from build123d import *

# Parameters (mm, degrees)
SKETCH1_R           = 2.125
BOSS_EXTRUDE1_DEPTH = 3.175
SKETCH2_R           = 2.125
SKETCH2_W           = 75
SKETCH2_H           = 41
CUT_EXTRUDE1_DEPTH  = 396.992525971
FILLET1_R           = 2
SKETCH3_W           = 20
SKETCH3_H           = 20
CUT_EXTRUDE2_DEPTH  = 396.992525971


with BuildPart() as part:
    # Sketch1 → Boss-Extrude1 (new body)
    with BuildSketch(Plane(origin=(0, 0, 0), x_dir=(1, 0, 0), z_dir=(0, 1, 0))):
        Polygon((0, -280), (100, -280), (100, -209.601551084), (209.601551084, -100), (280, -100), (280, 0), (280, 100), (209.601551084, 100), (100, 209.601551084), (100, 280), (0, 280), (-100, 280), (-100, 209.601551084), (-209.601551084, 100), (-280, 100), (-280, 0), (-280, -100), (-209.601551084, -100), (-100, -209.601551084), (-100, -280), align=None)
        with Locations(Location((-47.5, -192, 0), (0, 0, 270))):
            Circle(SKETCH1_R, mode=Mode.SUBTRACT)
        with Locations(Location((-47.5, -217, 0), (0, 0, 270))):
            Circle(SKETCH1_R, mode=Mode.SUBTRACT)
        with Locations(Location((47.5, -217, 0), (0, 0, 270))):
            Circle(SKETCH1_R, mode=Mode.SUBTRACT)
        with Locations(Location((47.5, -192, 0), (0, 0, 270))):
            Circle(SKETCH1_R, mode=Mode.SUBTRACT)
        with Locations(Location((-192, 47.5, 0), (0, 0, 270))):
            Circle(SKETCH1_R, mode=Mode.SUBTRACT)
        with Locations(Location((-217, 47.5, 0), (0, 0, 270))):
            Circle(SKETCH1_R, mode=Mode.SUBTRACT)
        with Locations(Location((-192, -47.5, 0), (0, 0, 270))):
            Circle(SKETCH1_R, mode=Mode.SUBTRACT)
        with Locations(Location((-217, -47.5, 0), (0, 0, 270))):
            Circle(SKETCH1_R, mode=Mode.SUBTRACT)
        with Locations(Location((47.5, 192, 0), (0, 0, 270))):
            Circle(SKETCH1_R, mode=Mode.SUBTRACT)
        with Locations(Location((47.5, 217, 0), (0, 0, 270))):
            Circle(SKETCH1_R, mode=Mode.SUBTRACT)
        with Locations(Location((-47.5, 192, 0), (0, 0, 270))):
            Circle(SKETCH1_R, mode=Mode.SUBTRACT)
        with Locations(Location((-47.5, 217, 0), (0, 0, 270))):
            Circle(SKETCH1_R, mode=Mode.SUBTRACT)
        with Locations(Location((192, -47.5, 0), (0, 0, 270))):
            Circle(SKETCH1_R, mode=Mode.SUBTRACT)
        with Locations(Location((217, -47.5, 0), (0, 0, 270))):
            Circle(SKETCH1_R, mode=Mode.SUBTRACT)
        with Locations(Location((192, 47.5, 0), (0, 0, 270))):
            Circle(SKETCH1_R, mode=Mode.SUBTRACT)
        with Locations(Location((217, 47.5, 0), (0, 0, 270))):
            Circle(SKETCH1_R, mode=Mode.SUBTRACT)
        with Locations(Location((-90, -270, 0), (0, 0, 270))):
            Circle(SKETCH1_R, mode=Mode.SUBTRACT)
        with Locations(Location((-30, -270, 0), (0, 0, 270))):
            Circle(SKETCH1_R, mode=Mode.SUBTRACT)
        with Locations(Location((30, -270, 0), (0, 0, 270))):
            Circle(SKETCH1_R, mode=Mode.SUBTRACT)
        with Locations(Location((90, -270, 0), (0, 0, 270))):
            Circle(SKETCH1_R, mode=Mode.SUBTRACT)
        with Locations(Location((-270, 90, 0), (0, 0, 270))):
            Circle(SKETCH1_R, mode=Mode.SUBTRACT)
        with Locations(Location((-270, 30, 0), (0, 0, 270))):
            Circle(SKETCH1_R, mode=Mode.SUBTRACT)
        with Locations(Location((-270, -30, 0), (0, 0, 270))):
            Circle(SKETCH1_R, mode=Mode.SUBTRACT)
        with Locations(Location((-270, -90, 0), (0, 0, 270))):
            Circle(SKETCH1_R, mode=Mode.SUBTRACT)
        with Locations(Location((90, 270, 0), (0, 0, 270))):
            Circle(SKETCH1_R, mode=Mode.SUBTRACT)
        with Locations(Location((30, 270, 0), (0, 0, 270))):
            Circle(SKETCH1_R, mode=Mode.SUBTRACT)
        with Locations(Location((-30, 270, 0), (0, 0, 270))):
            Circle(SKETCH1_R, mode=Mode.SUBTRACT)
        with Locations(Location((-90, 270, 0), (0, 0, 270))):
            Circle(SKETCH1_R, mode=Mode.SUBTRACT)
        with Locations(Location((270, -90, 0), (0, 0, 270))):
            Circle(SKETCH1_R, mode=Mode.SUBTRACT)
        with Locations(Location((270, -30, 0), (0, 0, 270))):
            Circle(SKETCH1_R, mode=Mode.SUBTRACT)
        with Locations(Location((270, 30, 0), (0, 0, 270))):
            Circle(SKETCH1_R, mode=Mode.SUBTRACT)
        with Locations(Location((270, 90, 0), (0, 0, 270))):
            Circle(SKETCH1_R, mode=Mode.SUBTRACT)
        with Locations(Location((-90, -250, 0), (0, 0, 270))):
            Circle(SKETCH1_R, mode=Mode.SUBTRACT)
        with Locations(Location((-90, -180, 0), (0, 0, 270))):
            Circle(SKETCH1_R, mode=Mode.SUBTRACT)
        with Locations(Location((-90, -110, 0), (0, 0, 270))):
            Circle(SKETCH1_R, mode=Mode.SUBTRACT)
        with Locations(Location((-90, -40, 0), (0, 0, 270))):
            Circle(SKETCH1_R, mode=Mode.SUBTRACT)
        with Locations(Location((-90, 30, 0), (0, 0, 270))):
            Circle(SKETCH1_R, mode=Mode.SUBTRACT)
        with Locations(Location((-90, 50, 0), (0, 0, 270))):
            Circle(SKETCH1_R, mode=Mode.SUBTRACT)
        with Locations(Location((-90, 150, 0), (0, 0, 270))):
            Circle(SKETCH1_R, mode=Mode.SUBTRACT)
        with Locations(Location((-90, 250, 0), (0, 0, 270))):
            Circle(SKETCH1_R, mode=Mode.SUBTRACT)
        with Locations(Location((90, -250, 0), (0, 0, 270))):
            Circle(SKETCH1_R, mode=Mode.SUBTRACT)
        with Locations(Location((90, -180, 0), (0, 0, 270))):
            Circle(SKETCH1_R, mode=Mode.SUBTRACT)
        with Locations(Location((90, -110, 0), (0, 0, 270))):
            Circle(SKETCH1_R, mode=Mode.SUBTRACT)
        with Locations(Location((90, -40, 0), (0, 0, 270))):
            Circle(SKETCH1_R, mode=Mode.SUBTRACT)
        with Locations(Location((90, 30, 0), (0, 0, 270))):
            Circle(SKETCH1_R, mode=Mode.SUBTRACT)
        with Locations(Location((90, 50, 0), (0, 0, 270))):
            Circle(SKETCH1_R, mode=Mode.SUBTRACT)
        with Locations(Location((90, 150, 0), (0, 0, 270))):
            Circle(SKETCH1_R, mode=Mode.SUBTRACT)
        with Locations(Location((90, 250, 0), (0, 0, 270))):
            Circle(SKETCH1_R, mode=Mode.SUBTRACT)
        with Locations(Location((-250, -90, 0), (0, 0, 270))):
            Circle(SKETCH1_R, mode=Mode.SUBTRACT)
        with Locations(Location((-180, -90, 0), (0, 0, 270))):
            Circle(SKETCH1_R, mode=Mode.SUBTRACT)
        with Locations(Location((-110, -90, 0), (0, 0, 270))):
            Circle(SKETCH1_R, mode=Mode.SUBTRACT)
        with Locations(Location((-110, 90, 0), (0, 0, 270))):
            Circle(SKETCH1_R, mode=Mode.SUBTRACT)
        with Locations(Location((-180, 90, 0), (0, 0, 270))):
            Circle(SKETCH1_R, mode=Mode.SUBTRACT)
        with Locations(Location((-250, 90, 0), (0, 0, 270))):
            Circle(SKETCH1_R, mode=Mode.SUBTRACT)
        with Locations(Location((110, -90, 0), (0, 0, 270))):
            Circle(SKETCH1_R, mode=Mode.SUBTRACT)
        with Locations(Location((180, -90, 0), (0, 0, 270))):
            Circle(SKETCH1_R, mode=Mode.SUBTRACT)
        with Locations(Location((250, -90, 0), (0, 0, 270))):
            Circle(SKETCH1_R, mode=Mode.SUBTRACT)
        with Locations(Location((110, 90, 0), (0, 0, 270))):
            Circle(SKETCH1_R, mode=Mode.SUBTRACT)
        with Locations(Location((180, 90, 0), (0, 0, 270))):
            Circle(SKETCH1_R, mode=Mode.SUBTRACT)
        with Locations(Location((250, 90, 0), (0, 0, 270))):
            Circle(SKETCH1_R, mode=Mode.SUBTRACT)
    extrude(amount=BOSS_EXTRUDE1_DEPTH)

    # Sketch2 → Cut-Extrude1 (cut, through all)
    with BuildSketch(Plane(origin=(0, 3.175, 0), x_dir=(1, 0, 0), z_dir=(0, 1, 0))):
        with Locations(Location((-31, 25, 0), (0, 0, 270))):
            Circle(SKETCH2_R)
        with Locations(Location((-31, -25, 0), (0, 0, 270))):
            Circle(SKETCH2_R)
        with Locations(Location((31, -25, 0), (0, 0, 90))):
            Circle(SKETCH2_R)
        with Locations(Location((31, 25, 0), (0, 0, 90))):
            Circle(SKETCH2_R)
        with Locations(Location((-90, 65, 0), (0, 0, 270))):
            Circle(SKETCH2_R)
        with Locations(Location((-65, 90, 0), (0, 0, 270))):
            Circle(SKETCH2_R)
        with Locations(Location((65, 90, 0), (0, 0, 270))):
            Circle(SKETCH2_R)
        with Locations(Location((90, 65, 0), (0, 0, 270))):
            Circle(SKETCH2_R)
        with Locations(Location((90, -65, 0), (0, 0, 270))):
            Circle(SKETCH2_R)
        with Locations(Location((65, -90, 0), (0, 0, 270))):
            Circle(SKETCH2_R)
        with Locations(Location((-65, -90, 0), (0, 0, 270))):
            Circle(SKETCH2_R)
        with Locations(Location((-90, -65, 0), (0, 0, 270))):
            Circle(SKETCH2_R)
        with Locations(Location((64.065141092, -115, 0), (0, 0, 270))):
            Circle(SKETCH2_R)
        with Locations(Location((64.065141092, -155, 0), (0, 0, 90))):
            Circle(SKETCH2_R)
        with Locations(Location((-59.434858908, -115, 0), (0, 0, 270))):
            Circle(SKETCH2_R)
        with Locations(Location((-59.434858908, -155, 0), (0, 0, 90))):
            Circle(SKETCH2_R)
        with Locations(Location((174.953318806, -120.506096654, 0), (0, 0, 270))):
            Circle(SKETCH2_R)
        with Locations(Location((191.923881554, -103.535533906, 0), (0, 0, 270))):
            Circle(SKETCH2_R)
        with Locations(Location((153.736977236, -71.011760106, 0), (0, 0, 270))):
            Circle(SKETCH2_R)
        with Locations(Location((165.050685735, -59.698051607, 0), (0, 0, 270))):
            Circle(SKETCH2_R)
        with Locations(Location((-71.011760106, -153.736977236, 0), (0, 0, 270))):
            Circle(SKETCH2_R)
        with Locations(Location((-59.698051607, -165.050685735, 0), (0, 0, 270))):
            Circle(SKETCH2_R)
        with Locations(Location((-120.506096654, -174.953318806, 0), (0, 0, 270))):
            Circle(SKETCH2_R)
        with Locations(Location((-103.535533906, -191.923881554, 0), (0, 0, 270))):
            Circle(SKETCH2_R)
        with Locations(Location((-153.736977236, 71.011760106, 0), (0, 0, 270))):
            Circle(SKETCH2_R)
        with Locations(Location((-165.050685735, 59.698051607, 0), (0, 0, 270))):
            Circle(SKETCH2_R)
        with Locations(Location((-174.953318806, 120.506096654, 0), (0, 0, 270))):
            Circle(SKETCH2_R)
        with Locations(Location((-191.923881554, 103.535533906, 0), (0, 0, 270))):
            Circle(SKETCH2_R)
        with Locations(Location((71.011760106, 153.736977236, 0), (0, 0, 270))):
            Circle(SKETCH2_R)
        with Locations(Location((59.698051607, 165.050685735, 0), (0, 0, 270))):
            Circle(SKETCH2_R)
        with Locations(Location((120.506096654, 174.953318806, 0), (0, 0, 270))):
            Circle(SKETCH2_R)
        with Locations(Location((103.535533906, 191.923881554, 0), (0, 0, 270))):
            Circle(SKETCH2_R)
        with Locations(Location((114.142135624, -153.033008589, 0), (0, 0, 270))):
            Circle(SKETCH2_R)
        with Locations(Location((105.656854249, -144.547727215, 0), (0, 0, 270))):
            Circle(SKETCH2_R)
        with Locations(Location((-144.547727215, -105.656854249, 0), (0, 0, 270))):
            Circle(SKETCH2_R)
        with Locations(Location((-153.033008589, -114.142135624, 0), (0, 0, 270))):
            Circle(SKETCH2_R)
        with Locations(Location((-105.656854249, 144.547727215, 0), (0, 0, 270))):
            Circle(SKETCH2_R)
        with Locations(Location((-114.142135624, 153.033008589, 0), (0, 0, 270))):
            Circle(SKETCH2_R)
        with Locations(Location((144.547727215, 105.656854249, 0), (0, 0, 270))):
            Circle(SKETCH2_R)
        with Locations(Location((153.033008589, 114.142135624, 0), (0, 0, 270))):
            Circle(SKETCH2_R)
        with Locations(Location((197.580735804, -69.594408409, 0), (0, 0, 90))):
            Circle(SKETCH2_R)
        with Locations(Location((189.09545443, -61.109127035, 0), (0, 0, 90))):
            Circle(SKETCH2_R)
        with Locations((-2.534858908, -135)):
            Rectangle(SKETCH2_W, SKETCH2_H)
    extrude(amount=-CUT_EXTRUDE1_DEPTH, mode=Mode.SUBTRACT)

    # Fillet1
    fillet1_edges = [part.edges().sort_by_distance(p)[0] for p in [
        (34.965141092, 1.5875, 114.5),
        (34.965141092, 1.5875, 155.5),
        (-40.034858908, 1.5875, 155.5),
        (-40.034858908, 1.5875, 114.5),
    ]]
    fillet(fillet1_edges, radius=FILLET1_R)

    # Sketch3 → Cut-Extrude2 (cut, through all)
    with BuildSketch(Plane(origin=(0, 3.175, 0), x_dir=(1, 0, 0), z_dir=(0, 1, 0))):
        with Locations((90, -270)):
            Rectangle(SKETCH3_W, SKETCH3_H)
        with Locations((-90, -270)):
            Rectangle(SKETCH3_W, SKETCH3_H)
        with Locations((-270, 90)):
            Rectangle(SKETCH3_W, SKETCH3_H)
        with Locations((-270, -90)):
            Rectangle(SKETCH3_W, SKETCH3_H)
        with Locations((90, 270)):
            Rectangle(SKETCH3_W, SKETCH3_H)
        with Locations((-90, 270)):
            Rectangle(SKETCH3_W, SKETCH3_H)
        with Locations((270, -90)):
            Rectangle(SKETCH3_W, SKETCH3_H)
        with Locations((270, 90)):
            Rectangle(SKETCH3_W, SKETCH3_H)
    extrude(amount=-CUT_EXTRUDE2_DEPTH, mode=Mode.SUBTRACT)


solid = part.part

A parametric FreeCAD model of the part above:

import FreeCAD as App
import Part
import Sketcher
Q = App.Units.Quantity


def edges_at(feature, points):
    """Names of the edges that pass closest to the given points."""
    edges = feature.Shape.Edges
    near = lambda p: min(range(len(edges)), key=lambda i: edges[i].distToShape(Part.Vertex(*p))[0])
    return sorted({f"Edge{near(p) + 1}" for p in points})


def add_polygon(sketch, points):
    """Adds a closed chain of lines whose ends are joined by coincident constraints."""
    first, n = sketch.GeometryCount, len(points)
    for a, b in zip(points, points[1:] + points[:1]):
        sketch.addGeometry(Part.LineSegment(App.Vector(*a, 0), App.Vector(*b, 0)), False)
    for i in range(n):
        sketch.addConstraint(Sketcher.Constraint("Coincident", first + i, 2, first + (i + 1) % n, 1))

doc = App.newDocument("Part")
body = doc.addObject("PartDesign::Body", "Body")

# Sketch on XZ plane
sketch1 = body.newObject("Sketcher::SketchObject", "Sketch")
sketch1.AttachmentSupport = (doc.getObject("XZ_Plane"), [""])
sketch1.MapMode = "FlatFace"
add_polygon(sketch1, [(100, 280), (100, 209.6), (209.6, 100), (280, 100), (280, -100), (209.6, -100), (100, -209.6), (100, -280), (-100, -280), (-100, -209.6), (-209.6, -100), (-280, -100), (-280, 100), (-209.6, 100), (-100, 209.6), (-100, 280)])  # lines 0-15
sketch1.addGeometry(Part.Circle(App.Vector(-90, 270, 0), App.Vector(0, 0, 1), 2.1), False)  # 16
sketch1.addGeometry(Part.Circle(App.Vector(-90, 250, 0), App.Vector(0, 0, 1), 2.1), False)  # 17
sketch1.addGeometry(Part.Circle(App.Vector(-30, 270, 0), App.Vector(0, 0, 1), 2.1), False)  # 18
sketch1.addGeometry(Part.Circle(App.Vector(-47.5, 217, 0), App.Vector(0, 0, 1), 2.1), False)  # 19
sketch1.addGeometry(Part.Circle(App.Vector(-90, 180, 0), App.Vector(0, 0, 1), 2.1), False)  # 20
sketch1.addGeometry(Part.Circle(App.Vector(-47.5, 192, 0), App.Vector(0, 0, 1), 2.1), False)  # 21
sketch1.addGeometry(Part.Circle(App.Vector(-270, 90, 0), App.Vector(0, 0, 1), 2.1), False)  # 22
sketch1.addGeometry(Part.Circle(App.Vector(-250, 90, 0), App.Vector(0, 0, 1), 2.1), False)  # 23
sketch1.addGeometry(Part.Circle(App.Vector(-180, 90, 0), App.Vector(0, 0, 1), 2.1), False)  # 24
sketch1.addGeometry(Part.Circle(App.Vector(-217, 47.5, 0), App.Vector(0, 0, 1), 2.1), False)  # 25
sketch1.addGeometry(Part.Circle(App.Vector(-270, 30, 0), App.Vector(0, 0, 1), 2.1), False)  # 26
sketch1.addGeometry(Part.Circle(App.Vector(-192, 47.5, 0), App.Vector(0, 0, 1), 2.1), False)  # 27
sketch1.addGeometry(Part.Circle(App.Vector(-90, 110, 0), App.Vector(0, 0, 1), 2.1), False)  # 28
sketch1.addGeometry(Part.Circle(App.Vector(-110, 90, 0), App.Vector(0, 0, 1), 2.1), False)  # 29
sketch1.addGeometry(Part.Circle(App.Vector(-90, 40, 0), App.Vector(0, 0, 1), 2.1), False)  # 30
sketch1.addGeometry(Part.Circle(App.Vector(30, 270, 0), App.Vector(0, 0, 1), 2.1), False)  # 31
sketch1.addGeometry(Part.Circle(App.Vector(47.5, 217, 0), App.Vector(0, 0, 1), 2.1), False)  # 32
sketch1.addGeometry(Part.Circle(App.Vector(90, 270, 0), App.Vector(0, 0, 1), 2.1), False)  # 33
sketch1.addGeometry(Part.Circle(App.Vector(90, 250, 0), App.Vector(0, 0, 1), 2.1), False)  # 34
sketch1.addGeometry(Part.Circle(App.Vector(47.5, 192, 0), App.Vector(0, 0, 1), 2.1), False)  # 35
sketch1.addGeometry(Part.Circle(App.Vector(90, 180, 0), App.Vector(0, 0, 1), 2.1), False)  # 36
sketch1.addGeometry(Part.Circle(App.Vector(90, 110, 0), App.Vector(0, 0, 1), 2.1), False)  # 37
sketch1.addGeometry(Part.Circle(App.Vector(110, 90, 0), App.Vector(0, 0, 1), 2.1), False)  # 38
sketch1.addGeometry(Part.Circle(App.Vector(90, 40, 0), App.Vector(0, 0, 1), 2.1), False)  # 39
sketch1.addGeometry(Part.Circle(App.Vector(180, 90, 0), App.Vector(0, 0, 1), 2.1), False)  # 40
sketch1.addGeometry(Part.Circle(App.Vector(250, 90, 0), App.Vector(0, 0, 1), 2.1), False)  # 41
sketch1.addGeometry(Part.Circle(App.Vector(270, 90, 0), App.Vector(0, 0, 1), 2.1), False)  # 42
sketch1.addGeometry(Part.Circle(App.Vector(192, 47.5, 0), App.Vector(0, 0, 1), 2.1), False)  # 43
sketch1.addGeometry(Part.Circle(App.Vector(217, 47.5, 0), App.Vector(0, 0, 1), 2.1), False)  # 44
sketch1.addGeometry(Part.Circle(App.Vector(270, 30, 0), App.Vector(0, 0, 1), 2.1), False)  # 45
sketch1.addGeometry(Part.Circle(App.Vector(-270, -30, 0), App.Vector(0, 0, 1), 2.1), False)  # 46
sketch1.addGeometry(Part.Circle(App.Vector(-217, -47.5, 0), App.Vector(0, 0, 1), 2.1), False)  # 47
sketch1.addGeometry(Part.Circle(App.Vector(-192, -47.5, 0), App.Vector(0, 0, 1), 2.1), False)  # 48
sketch1.addGeometry(Part.Circle(App.Vector(-270, -90, 0), App.Vector(0, 0, 1), 2.1), False)  # 49
sketch1.addGeometry(Part.Circle(App.Vector(-250, -90, 0), App.Vector(0, 0, 1), 2.1), False)  # 50
sketch1.addGeometry(Part.Circle(App.Vector(-180, -90, 0), App.Vector(0, 0, 1), 2.1), False)  # 51
sketch1.addGeometry(Part.Circle(App.Vector(-90, -30, 0), App.Vector(0, 0, 1), 2.1), False)  # 52
sketch1.addGeometry(Part.Circle(App.Vector(-90, -50, 0), App.Vector(0, 0, 1), 2.1), False)  # 53
sketch1.addGeometry(Part.Circle(App.Vector(-110, -90, 0), App.Vector(0, 0, 1), 2.1), False)  # 54
sketch1.addGeometry(Part.Circle(App.Vector(-90, -150, 0), App.Vector(0, 0, 1), 2.1), False)  # 55
sketch1.addGeometry(Part.Circle(App.Vector(-47.5, -192, 0), App.Vector(0, 0, 1), 2.1), False)  # 56
sketch1.addGeometry(Part.Circle(App.Vector(-90, -250, 0), App.Vector(0, 0, 1), 2.1), False)  # 57
sketch1.addGeometry(Part.Circle(App.Vector(-90, -270, 0), App.Vector(0, 0, 1), 2.1), False)  # 58
sketch1.addGeometry(Part.Circle(App.Vector(-47.5, -217, 0), App.Vector(0, 0, 1), 2.1), False)  # 59
sketch1.addGeometry(Part.Circle(App.Vector(-30, -270, 0), App.Vector(0, 0, 1), 2.1), False)  # 60
sketch1.addGeometry(Part.Circle(App.Vector(90, -30, 0), App.Vector(0, 0, 1), 2.1), False)  # 61
sketch1.addGeometry(Part.Circle(App.Vector(90, -50, 0), App.Vector(0, 0, 1), 2.1), False)  # 62
sketch1.addGeometry(Part.Circle(App.Vector(110, -90, 0), App.Vector(0, 0, 1), 2.1), False)  # 63
sketch1.addGeometry(Part.Circle(App.Vector(192, -47.5, 0), App.Vector(0, 0, 1), 2.1), False)  # 64
sketch1.addGeometry(Part.Circle(App.Vector(270, -30, 0), App.Vector(0, 0, 1), 2.1), False)  # 65
sketch1.addGeometry(Part.Circle(App.Vector(217, -47.5, 0), App.Vector(0, 0, 1), 2.1), False)  # 66
sketch1.addGeometry(Part.Circle(App.Vector(180, -90, 0), App.Vector(0, 0, 1), 2.1), False)  # 67
sketch1.addGeometry(Part.Circle(App.Vector(250, -90, 0), App.Vector(0, 0, 1), 2.1), False)  # 68
sketch1.addGeometry(Part.Circle(App.Vector(270, -90, 0), App.Vector(0, 0, 1), 2.1), False)  # 69
sketch1.addGeometry(Part.Circle(App.Vector(47.5, -192, 0), App.Vector(0, 0, 1), 2.1), False)  # 70
sketch1.addGeometry(Part.Circle(App.Vector(90, -150, 0), App.Vector(0, 0, 1), 2.1), False)  # 71
sketch1.addGeometry(Part.Circle(App.Vector(47.5, -217, 0), App.Vector(0, 0, 1), 2.1), False)  # 72
sketch1.addGeometry(Part.Circle(App.Vector(30, -270, 0), App.Vector(0, 0, 1), 2.1), False)  # 73
sketch1.addGeometry(Part.Circle(App.Vector(90, -250, 0), App.Vector(0, 0, 1), 2.1), False)  # 74
sketch1.addGeometry(Part.Circle(App.Vector(90, -270, 0), App.Vector(0, 0, 1), 2.1), False)  # 75
sketch1.addConstraint([
    Sketcher.Constraint("Vertical", 0),
    Sketcher.Constraint("Horizontal", 2),
    Sketcher.Constraint("Vertical", 3),
    Sketcher.Constraint("Horizontal", 4),
    Sketcher.Constraint("Vertical", 6),
    Sketcher.Constraint("Horizontal", 7),
    Sketcher.Constraint("Vertical", 8),
    Sketcher.Constraint("Horizontal", 10),
    Sketcher.Constraint("Vertical", 11),
    Sketcher.Constraint("Horizontal", 12),
    Sketcher.Constraint("Vertical", 14),
    Sketcher.Constraint("Horizontal", 15),
    Sketcher.Constraint("Equal", 16, 17),
    Sketcher.Constraint("Equal", 17, 18),
    Sketcher.Constraint("Equal", 18, 19),
    Sketcher.Constraint("Equal", 19, 20),
    Sketcher.Constraint("Equal", 20, 21),
    Sketcher.Constraint("Equal", 21, 22),
    Sketcher.Constraint("Equal", 22, 23),
    Sketcher.Constraint("Equal", 23, 24),
    Sketcher.Constraint("Equal", 24, 25),
    Sketcher.Constraint("Equal", 25, 26),
    Sketcher.Constraint("Equal", 26, 27),
    Sketcher.Constraint("Equal", 27, 28),
    Sketcher.Constraint("Equal", 28, 29),
    Sketcher.Constraint("Equal", 29, 30),
    Sketcher.Constraint("Equal", 30, 31),
    Sketcher.Constraint("Equal", 31, 32),
    Sketcher.Constraint("Equal", 32, 33),
    Sketcher.Constraint("Equal", 33, 34),
    Sketcher.Constraint("Equal", 34, 35),
    Sketcher.Constraint("Equal", 35, 36),
    Sketcher.Constraint("Equal", 36, 37),
    Sketcher.Constraint("Equal", 37, 38),
    Sketcher.Constraint("Equal", 38, 39),
    Sketcher.Constraint("Equal", 39, 40),
    Sketcher.Constraint("Equal", 40, 41),
    Sketcher.Constraint("Equal", 41, 42),
    Sketcher.Constraint("Equal", 42, 43),
    Sketcher.Constraint("Equal", 43, 44),
    Sketcher.Constraint("Equal", 44, 45),
    Sketcher.Constraint("Equal", 45, 46),
    Sketcher.Constraint("Equal", 46, 47),
    Sketcher.Constraint("Equal", 47, 48),
    Sketcher.Constraint("Equal", 48, 49),
    Sketcher.Constraint("Equal", 49, 50),
    Sketcher.Constraint("Equal", 50, 51),
    Sketcher.Constraint("Equal", 51, 52),
    Sketcher.Constraint("Equal", 52, 53),
    Sketcher.Constraint("Equal", 53, 54),
    Sketcher.Constraint("Equal", 54, 55),
    Sketcher.Constraint("Equal", 55, 56),
    Sketcher.Constraint("Equal", 56, 57),
    Sketcher.Constraint("Equal", 57, 58),
    Sketcher.Constraint("Equal", 58, 59),
    Sketcher.Constraint("Equal", 59, 60),
    Sketcher.Constraint("Equal", 60, 61),
    Sketcher.Constraint("Equal", 61, 62),
    Sketcher.Constraint("Equal", 62, 63),
    Sketcher.Constraint("Equal", 63, 64),
    Sketcher.Constraint("Equal", 64, 65),
    Sketcher.Constraint("Equal", 65, 66),
    Sketcher.Constraint("Equal", 66, 67),
    Sketcher.Constraint("Equal", 67, 68),
    Sketcher.Constraint("Equal", 68, 69),
    Sketcher.Constraint("Equal", 69, 70),
    Sketcher.Constraint("Equal", 70, 71),
    Sketcher.Constraint("Equal", 71, 72),
    Sketcher.Constraint("Equal", 72, 73),
    Sketcher.Constraint("Equal", 73, 74),
    Sketcher.Constraint("Equal", 74, 75),
    Sketcher.Constraint("Symmetric", 45, 3, 46, 3, -1, 1),
    Sketcher.Constraint("Symmetric", 44, 3, 47, 3, -1, 1),
    Sketcher.Constraint("Symmetric", 43, 3, 48, 3, -1, 1),
    Sketcher.Constraint("Symmetric", 42, 3, 49, 3, -1, 1),
    Sketcher.Constraint("Symmetric", 41, 3, 50, 3, -1, 1),
    Sketcher.Constraint("Symmetric", 40, 3, 51, 3, -1, 1),
    Sketcher.Constraint("Symmetric", 38, 3, 54, 3, -1, 1),
    Sketcher.Constraint("Symmetric", 35, 3, 56, 3, -1, 1),
    Sketcher.Constraint("Symmetric", 34, 3, 57, 3, -1, 1),
    Sketcher.Constraint("Symmetric", 33, 3, 58, 3, -1, 1),
    Sketcher.Constraint("Symmetric", 32, 3, 59, 3, -1, 1),
    Sketcher.Constraint("Symmetric", 31, 3, 60, 3, -1, 1),
    Sketcher.Constraint("Symmetric", 29, 3, 63, 3, -1, 1),
    Sketcher.Constraint("Symmetric", 27, 3, 64, 3, -1, 1),
    Sketcher.Constraint("Symmetric", 26, 3, 65, 3, -1, 1),
    Sketcher.Constraint("Symmetric", 25, 3, 66, 3, -1, 1),
    Sketcher.Constraint("Symmetric", 24, 3, 67, 3, -1, 1),
    Sketcher.Constraint("Symmetric", 23, 3, 68, 3, -1, 1),
    Sketcher.Constraint("Symmetric", 22, 3, 69, 3, -1, 1),
    Sketcher.Constraint("Symmetric", 21, 3, 70, 3, -1, 1),
    Sketcher.Constraint("Symmetric", 19, 3, 72, 3, -1, 1),
    Sketcher.Constraint("Symmetric", 18, 3, 73, 3, -1, 1),
    Sketcher.Constraint("Symmetric", 17, 3, 74, 3, -1, 1),
    Sketcher.Constraint("Symmetric", 16, 3, 75, 3, -1, 1),
    Sketcher.Constraint("Symmetric", 0, 2, 8, 2, -1, 1),
    Sketcher.Constraint("Symmetric", 1, 2, 9, 2, -1, 1),
    Sketcher.Constraint("Symmetric", 3, 2, 11, 2, -1, 1),
    Sketcher.Constraint("Symmetric", 5, 2, 13, 2, -1, 1),
    Sketcher.Constraint("Symmetric", 18, 3, 31, 3, -2),
    Sketcher.Constraint("Symmetric", 19, 3, 32, 3, -2),
    Sketcher.Constraint("Symmetric", 16, 3, 33, 3, -2),
    Sketcher.Constraint("Symmetric", 17, 3, 34, 3, -2),
    Sketcher.Constraint("Symmetric", 21, 3, 35, 3, -2),
    Sketcher.Constraint("Symmetric", 20, 3, 36, 3, -2),
    Sketcher.Constraint("Symmetric", 28, 3, 37, 3, -2),
    Sketcher.Constraint("Symmetric", 29, 3, 38, 3, -2),
    Sketcher.Constraint("Symmetric", 30, 3, 39, 3, -2),
    Sketcher.Constraint("Symmetric", 24, 3, 40, 3, -2),
    Sketcher.Constraint("Symmetric", 23, 3, 41, 3, -2),
    Sketcher.Constraint("Symmetric", 22, 3, 42, 3, -2),
    Sketcher.Constraint("Symmetric", 27, 3, 43, 3, -2),
    Sketcher.Constraint("Symmetric", 25, 3, 44, 3, -2),
    Sketcher.Constraint("Symmetric", 26, 3, 45, 3, -2),
    Sketcher.Constraint("Symmetric", 52, 3, 61, 3, -2),
    Sketcher.Constraint("Symmetric", 53, 3, 62, 3, -2),
    Sketcher.Constraint("Symmetric", 55, 3, 71, 3, -2),
    Sketcher.Constraint("Symmetric", 5, 2, 8, 2, -2),
    Sketcher.Constraint("Symmetric", 4, 2, 9, 2, -2),
    Sketcher.Constraint("Perpendicular", 1, 5),
    Sketcher.Constraint("Perpendicular", 9, 13),
    Sketcher.Constraint("Horizontal", 16, 3, 18, 3),
    Sketcher.Constraint("Horizontal", 22, 3, 23, 3),
    Sketcher.Constraint("Horizontal", 23, 3, 24, 3),
    Sketcher.Constraint("Horizontal", 25, 3, 27, 3),
    Sketcher.Constraint("Horizontal", 24, 3, 29, 3),
    Sketcher.Constraint("Horizontal", 46, 3, 52, 3),
    Sketcher.Constraint("Vertical", 16, 3, 17, 3),
    Sketcher.Constraint("Vertical", 17, 3, 20, 3),
    Sketcher.Constraint("Vertical", 19, 3, 21, 3),
    Sketcher.Constraint("Vertical", 22, 3, 26, 3),
    Sketcher.Constraint("Vertical", 20, 3, 28, 3),
    Sketcher.Constraint("Vertical", 28, 3, 30, 3),
    Sketcher.Constraint("Vertical", 30, 3, 52, 3),
    Sketcher.Constraint("Vertical", 52, 3, 53, 3),
    Sketcher.Constraint("Vertical", 53, 3, 55, 3),
    Sketcher.Constraint("Equal", 12, 0),
    Sketcher.Constraint("Equal", 15, 3),
    Sketcher.Constraint("Equal", 0, 6),
    Sketcher.Constraint("Diameter", 16, Q("4.25 mm")),
    Sketcher.Constraint("DistanceX", 7, 2, 7, 1, Q("200 mm")),
    Sketcher.Constraint("Distance", 1, Q("155 mm")),
    Sketcher.Constraint("DistanceX", 16, 3, -1, 1, Q("90 mm")),
    Sketcher.Constraint("DistanceY", -1, 1, 16, 3, Q("270 mm")),
    Sketcher.Constraint("DistanceY", -1, 1, 17, 3, Q("250 mm")),
    Sketcher.Constraint("DistanceX", 18, 3, -1, 1, Q("30 mm")),
    Sketcher.Constraint("DistanceY", -1, 1, 19, 3, Q("217 mm")),
    Sketcher.Constraint("DistanceY", -1, 1, 20, 3, Q("180 mm")),
    Sketcher.Constraint("DistanceY", -1, 1, 21, 3, Q("192 mm")),
    Sketcher.Constraint("DistanceX", 22, 3, -1, 1, Q("270 mm")),
    Sketcher.Constraint("DistanceY", -1, 1, 22, 3, Q("90 mm")),
    Sketcher.Constraint("DistanceX", 23, 3, -1, 1, Q("250 mm")),
    Sketcher.Constraint("DistanceX", 24, 3, -1, 1, Q("180 mm")),
    Sketcher.Constraint("DistanceX", 25, 3, -1, 1, Q("217 mm")),
    Sketcher.Constraint("DistanceY", -1, 1, 26, 3, Q("30 mm")),
    Sketcher.Constraint("DistanceX", 27, 3, -1, 1, Q("192 mm")),
    Sketcher.Constraint("DistanceY", -1, 1, 28, 3, Q("110 mm")),
    Sketcher.Constraint("DistanceX", 29, 3, -1, 1, Q("110 mm")),
    Sketcher.Constraint("DistanceY", -1, 1, 30, 3, Q("40 mm")),
    Sketcher.Constraint("DistanceY", 53, 3, -1, 1, Q("50 mm")),
    Sketcher.Constraint("DistanceY", 55, 3, -1, 1, Q("150 mm")),
    Sketcher.Constraint("DistanceX", -1, 1, 2, 2, Q("280 mm")),
    Sketcher.Constraint("DistanceX", 19, 3, -1, 1, Q("47.5 mm")),
    Sketcher.Constraint("DistanceY", -1, 1, 25, 3, Q("47.5 mm")),
])
pad1 = body.newObject("PartDesign::Pad", "Pad")
pad1.Profile = sketch1
pad1.Length = 3.175
pad1.Reversed = True

# Sketch on XZ plane
sketch2 = body.newObject("Sketcher::SketchObject", "Sketch001")
sketch2.AttachmentSupport = (doc.getObject("XZ_Plane"), [""])
sketch2.MapMode = "FlatFace"
sketch2.AttachmentOffset = App.Placement(App.Vector(0, 0, -3.175), App.Rotation())
sketch2.addGeometry(Part.Circle(App.Vector(-31, -25, 0), App.Vector(0, 0, 1), 2.1), False)  # 0
sketch2.addGeometry(Part.Circle(App.Vector(-31, 25, 0), App.Vector(0, 0, 1), 2.1), False)  # 1
sketch2.addGeometry(Part.Circle(App.Vector(31, 25, 0), App.Vector(0, 0, 1), 2.1), False)  # 2
sketch2.addGeometry(Part.Circle(App.Vector(31, -25, 0), App.Vector(0, 0, 1), 2.1), False)  # 3
sketch2.addGeometry(Part.Circle(App.Vector(-90, -65, 0), App.Vector(0, 0, 1), 2.1), False)  # 4
sketch2.addGeometry(Part.Circle(App.Vector(-65, -90, 0), App.Vector(0, 0, 1), 2.1), False)  # 5
sketch2.addGeometry(Part.Circle(App.Vector(65, -90, 0), App.Vector(0, 0, 1), 2.1), False)  # 6
sketch2.addGeometry(Part.Circle(App.Vector(90, -65, 0), App.Vector(0, 0, 1), 2.1), False)  # 7
sketch2.addGeometry(Part.Circle(App.Vector(90, 65, 0), App.Vector(0, 0, 1), 2.1), False)  # 8
sketch2.addGeometry(Part.Circle(App.Vector(65, 90, 0), App.Vector(0, 0, 1), 2.1), False)  # 9
sketch2.addGeometry(Part.Circle(App.Vector(-65, 90, 0), App.Vector(0, 0, 1), 2.1), False)  # 10
sketch2.addGeometry(Part.Circle(App.Vector(-90, 65, 0), App.Vector(0, 0, 1), 2.1), False)  # 11
sketch2.addGeometry(Part.Circle(App.Vector(64.1, 115, 0), App.Vector(0, 0, 1), 2.1), False)  # 12
sketch2.addGeometry(Part.Circle(App.Vector(64.1, 155, 0), App.Vector(0, 0, 1), 2.1), False)  # 13
sketch2.addGeometry(Part.Circle(App.Vector(-59.4, 115, 0), App.Vector(0, 0, 1), 2.1), False)  # 14
sketch2.addGeometry(Part.Circle(App.Vector(-59.4, 155, 0), App.Vector(0, 0, 1), 2.1), False)  # 15
sketch2.addGeometry(Part.Circle(App.Vector(175, 120.5, 0), App.Vector(0, 0, 1), 2.1), False)  # 16
sketch2.addGeometry(Part.Circle(App.Vector(191.9, 103.5, 0), App.Vector(0, 0, 1), 2.1), False)  # 17
sketch2.addGeometry(Part.Circle(App.Vector(153.7, 71, 0), App.Vector(0, 0, 1), 2.1), False)  # 18
sketch2.addGeometry(Part.Circle(App.Vector(165.1, 59.7, 0), App.Vector(0, 0, 1), 2.1), False)  # 19
sketch2.addGeometry(Part.Circle(App.Vector(-71, 153.7, 0), App.Vector(0, 0, 1), 2.1), False)  # 20
sketch2.addGeometry(Part.Circle(App.Vector(-59.7, 165.1, 0), App.Vector(0, 0, 1), 2.1), False)  # 21
sketch2.addGeometry(Part.Circle(App.Vector(-120.5, 175, 0), App.Vector(0, 0, 1), 2.1), False)  # 22
sketch2.addGeometry(Part.Circle(App.Vector(-103.5, 191.9, 0), App.Vector(0, 0, 1), 2.1), False)  # 23
sketch2.addGeometry(Part.Circle(App.Vector(-153.7, -71, 0), App.Vector(0, 0, 1), 2.1), False)  # 24
sketch2.addGeometry(Part.Circle(App.Vector(-165.1, -59.7, 0), App.Vector(0, 0, 1), 2.1), False)  # 25
sketch2.addGeometry(Part.Circle(App.Vector(-175, -120.5, 0), App.Vector(0, 0, 1), 2.1), False)  # 26
sketch2.addGeometry(Part.Circle(App.Vector(-191.9, -103.5, 0), App.Vector(0, 0, 1), 2.1), False)  # 27
sketch2.addGeometry(Part.Circle(App.Vector(71, -153.7, 0), App.Vector(0, 0, 1), 2.1), False)  # 28
sketch2.addGeometry(Part.Circle(App.Vector(59.7, -165.1, 0), App.Vector(0, 0, 1), 2.1), False)  # 29
sketch2.addGeometry(Part.Circle(App.Vector(120.5, -175, 0), App.Vector(0, 0, 1), 2.1), False)  # 30
sketch2.addGeometry(Part.Circle(App.Vector(103.5, -191.9, 0), App.Vector(0, 0, 1), 2.1), False)  # 31
sketch2.addGeometry(Part.Circle(App.Vector(114.1, 153, 0), App.Vector(0, 0, 1), 2.1), False)  # 32
sketch2.addGeometry(Part.Circle(App.Vector(105.7, 144.5, 0), App.Vector(0, 0, 1), 2.1), False)  # 33
sketch2.addGeometry(Part.Circle(App.Vector(-144.5, 105.7, 0), App.Vector(0, 0, 1), 2.1), False)  # 34
sketch2.addGeometry(Part.Circle(App.Vector(-153, 114.1, 0), App.Vector(0, 0, 1), 2.1), False)  # 35
sketch2.addGeometry(Part.Circle(App.Vector(-105.7, -144.5, 0), App.Vector(0, 0, 1), 2.1), False)  # 36
sketch2.addGeometry(Part.Circle(App.Vector(-114.1, -153, 0), App.Vector(0, 0, 1), 2.1), False)  # 37
sketch2.addGeometry(Part.Circle(App.Vector(144.5, -105.7, 0), App.Vector(0, 0, 1), 2.1), False)  # 38
sketch2.addGeometry(Part.Circle(App.Vector(153, -114.1, 0), App.Vector(0, 0, 1), 2.1), False)  # 39
sketch2.addGeometry(Part.Circle(App.Vector(197.6, 69.6, 0), App.Vector(0, 0, 1), 2.1), False)  # 40
sketch2.addGeometry(Part.Circle(App.Vector(189.1, 61.1, 0), App.Vector(0, 0, 1), 2.1), False)  # 41
add_polygon(sketch2, [(-40, 114.5), (-40, 155.5), (35, 155.5), (35, 114.5)])  # lines 42-45
sketch2.addConstraint([
    Sketcher.Constraint("Vertical", 42),
    Sketcher.Constraint("Horizontal", 43),
    Sketcher.Constraint("Vertical", 44),
    Sketcher.Constraint("Horizontal", 45),
    Sketcher.Constraint("Equal", 0, 1),
    Sketcher.Constraint("Equal", 1, 2),
    Sketcher.Constraint("Equal", 2, 3),
    Sketcher.Constraint("Equal", 3, 4),
    Sketcher.Constraint("Equal", 4, 5),
    Sketcher.Constraint("Equal", 5, 6),
    Sketcher.Constraint("Equal", 6, 7),
    Sketcher.Constraint("Equal", 7, 8),
    Sketcher.Constraint("Equal", 8, 9),
    Sketcher.Constraint("Equal", 9, 10),
    Sketcher.Constraint("Equal", 10, 11),
    Sketcher.Constraint("Equal", 11, 12),
    Sketcher.Constraint("Equal", 12, 13),
    Sketcher.Constraint("Equal", 13, 14),
    Sketcher.Constraint("Equal", 14, 15),
    Sketcher.Constraint("Equal", 15, 16),
    Sketcher.Constraint("Equal", 16, 17),
    Sketcher.Constraint("Equal", 17, 18),
    Sketcher.Constraint("Equal", 18, 19),
    Sketcher.Constraint("Equal", 19, 20),
    Sketcher.Constraint("Equal", 20, 21),
    Sketcher.Constraint("Equal", 21, 22),
    Sketcher.Constraint("Equal", 22, 23),
    Sketcher.Constraint("Equal", 23, 24),
    Sketcher.Constraint("Equal", 24, 25),
    Sketcher.Constraint("Equal", 25, 26),
    Sketcher.Constraint("Equal", 26, 27),
    Sketcher.Constraint("Equal", 27, 28),
    Sketcher.Constraint("Equal", 28, 29),
    Sketcher.Constraint("Equal", 29, 30),
    Sketcher.Constraint("Equal", 30, 31),
    Sketcher.Constraint("Equal", 31, 32),
    Sketcher.Constraint("Equal", 32, 33),
    Sketcher.Constraint("Equal", 33, 34),
    Sketcher.Constraint("Equal", 34, 35),
    Sketcher.Constraint("Equal", 35, 36),
    Sketcher.Constraint("Equal", 36, 37),
    Sketcher.Constraint("Equal", 37, 38),
    Sketcher.Constraint("Equal", 38, 39),
    Sketcher.Constraint("Equal", 39, 40),
    Sketcher.Constraint("Equal", 40, 41),
    Sketcher.Constraint("Symmetric", 0, 3, 2, 3, -1, 1),
    Sketcher.Constraint("Symmetric", 1, 3, 3, 3, -1, 1),
    Sketcher.Constraint("Symmetric", 4, 3, 8, 3, -1, 1),
    Sketcher.Constraint("Symmetric", 5, 3, 9, 3, -1, 1),
    Sketcher.Constraint("Symmetric", 6, 3, 10, 3, -1, 1),
    Sketcher.Constraint("Symmetric", 7, 3, 11, 3, -1, 1),
    Sketcher.Constraint("Symmetric", 18, 3, 24, 3, -1, 1),
    Sketcher.Constraint("Symmetric", 19, 3, 25, 3, -1, 1),
    Sketcher.Constraint("Symmetric", 16, 3, 26, 3, -1, 1),
    Sketcher.Constraint("Symmetric", 17, 3, 27, 3, -1, 1),
    Sketcher.Constraint("Symmetric", 20, 3, 28, 3, -1, 1),
    Sketcher.Constraint("Symmetric", 21, 3, 29, 3, -1, 1),
    Sketcher.Constraint("Symmetric", 22, 3, 30, 3, -1, 1),
    Sketcher.Constraint("Symmetric", 23, 3, 31, 3, -1, 1),
    Sketcher.Constraint("Symmetric", 33, 3, 36, 3, -1, 1),
    Sketcher.Constraint("Symmetric", 32, 3, 37, 3, -1, 1),
    Sketcher.Constraint("Symmetric", 34, 3, 38, 3, -1, 1),
    Sketcher.Constraint("Symmetric", 35, 3, 39, 3, -1, 1),
    Sketcher.Constraint("Symmetric", 1, 3, 2, 3, -2),
    Sketcher.Constraint("Symmetric", 5, 3, 6, 3, -2),
    Sketcher.Constraint("Symmetric", 4, 3, 7, 3, -2),
    Sketcher.Constraint("Horizontal", 12, 3, 14, 3),
    Sketcher.Constraint("Horizontal", 13, 3, 15, 3),
    Sketcher.Constraint("Vertical", 12, 3, 13, 3),
    Sketcher.Constraint("Vertical", 14, 3, 15, 3),
    Sketcher.Constraint("Diameter", 0, Q("4.25 mm")),
    Sketcher.Constraint("DistanceX", 43, 1, 43, 2, Q("75 mm")),
    Sketcher.Constraint("DistanceY", 42, 1, 42, 2, Q("41 mm")),
    Sketcher.Constraint("DistanceX", 0, 3, -1, 1, Q("31 mm")),
    Sketcher.Constraint("DistanceY", 0, 3, -1, 1, Q("25 mm")),
    Sketcher.Constraint("DistanceX", 4, 3, -1, 1, Q("90 mm")),
    Sketcher.Constraint("DistanceY", 4, 3, -1, 1, Q("65 mm")),
    Sketcher.Constraint("DistanceX", 5, 3, -1, 1, Q("65 mm")),
    Sketcher.Constraint("DistanceY", 5, 3, -1, 1, Q("90 mm")),
    Sketcher.Constraint("DistanceY", -1, 1, 12, 3, Q("115 mm")),
    Sketcher.Constraint("DistanceY", -1, 1, 13, 3, Q("155 mm")),
    Sketcher.Constraint("DistanceY", -1, 1, 42, 2, Q("155.5 mm")),
    Sketcher.Constraint("DistanceX", 14, 3, 12, 3, Q("123.5 mm")),
    Sketcher.Constraint("DistanceX", 15, 3, 42, 2, Q("19.4 mm")),
    Sketcher.Constraint("DistanceX", 20, 3, 15, 3, Q("11.576901 mm")),
    Sketcher.Constraint("DistanceX", -1, 1, 12, 3, Q("64.065141 mm")),
    Sketcher.Constraint("DistanceX", -1, 1, 16, 3, Q("174.953319 mm")),
    Sketcher.Constraint("DistanceX", -1, 1, 17, 3, Q("191.923882 mm")),
    Sketcher.Constraint("DistanceY", -1, 1, 18, 3, Q("71.01176 mm")),
    Sketcher.Constraint("DistanceY", -1, 1, 19, 3, Q("59.698052 mm")),
    Sketcher.Constraint("DistanceX", 21, 3, -1, 1, Q("59.698052 mm")),
    Sketcher.Constraint("DistanceY", -1, 1, 22, 3, Q("174.953319 mm")),
    Sketcher.Constraint("DistanceY", -1, 1, 23, 3, Q("191.923882 mm")),
    Sketcher.Constraint("DistanceY", -1, 1, 32, 3, Q("153.033009 mm")),
    Sketcher.Constraint("DistanceX", 35, 3, -1, 1, Q("153.033009 mm")),
    Sketcher.Constraint("DistanceY", -1, 1, 40, 3, Q("69.594408 mm")),
    Sketcher.Constraint("DistanceX", 18, 3, 16, 3, Q("21.216342 mm")),
    Sketcher.Constraint("DistanceX", 18, 3, 19, 3, Q("11.313708 mm")),
    Sketcher.Constraint("DistanceY", 20, 3, 21, 3, Q("11.313708 mm")),
    Sketcher.Constraint("DistanceY", 20, 3, 22, 3, Q("21.216342 mm")),
    Sketcher.Constraint("DistanceY", 16, 3, 32, 3, Q("32.526912 mm")),
    Sketcher.Constraint("DistanceX", 32, 3, 18, 3, Q("39.594842 mm")),
    Sketcher.Constraint("DistanceX", 33, 3, 32, 3, Q("8.485281 mm")),
    Sketcher.Constraint("DistanceY", 33, 3, 32, 3, Q("8.485281 mm")),
    Sketcher.Constraint("DistanceX", 34, 3, 22, 3, Q("24.041631 mm")),
    Sketcher.Constraint("DistanceX", 34, 3, 14, 3, Q("85.112868 mm")),
    Sketcher.Constraint("DistanceY", 34, 3, 35, 3, Q("8.485281 mm")),
    Sketcher.Constraint("DistanceY", 35, 3, 20, 3, Q("39.594842 mm")),
    Sketcher.Constraint("DistanceX", 19, 3, 40, 3, Q("32.53005 mm")),
    Sketcher.Constraint("DistanceX", 41, 3, 40, 3, Q("8.485281 mm")),
    Sketcher.Constraint("DistanceY", 41, 3, 40, 3, Q("8.485281 mm")),
    Sketcher.Constraint("DistanceY", -1, 1, 17, 3, Q("103.535534 mm")),
    Sketcher.Constraint("DistanceX", 23, 3, -1, 1, Q("103.535534 mm")),
])
pocket1 = body.newObject("PartDesign::Pocket", "Pocket")
pocket1.Profile = sketch2
pocket1.Type = "ThroughAll"
pocket1.Reversed = True
doc.recompute()

fillet = body.newObject("PartDesign::Fillet", "Fillet")
fillet.Base = (pocket1, edges_at(pocket1, [
    (34.965, 1.587, 114.5),
    (34.965, 1.587, 155.5),
    (-40.035, 1.587, 155.5),
    (-40.035, 1.587, 114.5),
]))
fillet.Radius = 2

# Sketch on XZ plane
sketch3 = body.newObject("Sketcher::SketchObject", "Sketch002")
sketch3.AttachmentSupport = (doc.getObject("XZ_Plane"), [""])
sketch3.MapMode = "FlatFace"
sketch3.AttachmentOffset = App.Placement(App.Vector(0, 0, -3.175), App.Rotation())
add_polygon(sketch3, [(80, 260), (80, 280), (100, 280), (100, 260)])  # lines 0-3
add_polygon(sketch3, [(-100, 260), (-100, 280), (-80, 280), (-80, 260)])  # lines 4-7
add_polygon(sketch3, [(-280, -100), (-280, -80), (-260, -80), (-260, -100)])  # lines 8-11
add_polygon(sketch3, [(-280, 80), (-280, 100), (-260, 100), (-260, 80)])  # lines 12-15
add_polygon(sketch3, [(80, -280), (80, -260), (100, -260), (100, -280)])  # lines 16-19
add_polygon(sketch3, [(-100, -280), (-100, -260), (-80, -260), (-80, -280)])  # lines 20-23
add_polygon(sketch3, [(260, 80), (260, 100), (280, 100), (280, 80)])  # lines 24-27
add_polygon(sketch3, [(260, -100), (260, -80), (280, -80), (280, -100)])  # lines 28-31
sketch3.addConstraint([
    Sketcher.Constraint("Vertical", 0),
    Sketcher.Constraint("Horizontal", 1),
    Sketcher.Constraint("Vertical", 2),
    Sketcher.Constraint("Horizontal", 3),
    Sketcher.Constraint("Vertical", 4),
    Sketcher.Constraint("Horizontal", 5),
    Sketcher.Constraint("Vertical", 6),
    Sketcher.Constraint("Horizontal", 7),
    Sketcher.Constraint("Vertical", 8),
    Sketcher.Constraint("Horizontal", 9),
    Sketcher.Constraint("Vertical", 10),
    Sketcher.Constraint("Horizontal", 11),
    Sketcher.Constraint("Vertical", 12),
    Sketcher.Constraint("Horizontal", 13),
    Sketcher.Constraint("Vertical", 14),
    Sketcher.Constraint("Horizontal", 15),
    Sketcher.Constraint("Vertical", 16),
    Sketcher.Constraint("Horizontal", 17),
    Sketcher.Constraint("Vertical", 18),
    Sketcher.Constraint("Horizontal", 19),
    Sketcher.Constraint("Vertical", 20),
    Sketcher.Constraint("Horizontal", 21),
    Sketcher.Constraint("Vertical", 22),
    Sketcher.Constraint("Horizontal", 23),
    Sketcher.Constraint("Vertical", 24),
    Sketcher.Constraint("Horizontal", 25),
    Sketcher.Constraint("Vertical", 26),
    Sketcher.Constraint("Horizontal", 27),
    Sketcher.Constraint("Vertical", 28),
    Sketcher.Constraint("Horizontal", 29),
    Sketcher.Constraint("Vertical", 30),
    Sketcher.Constraint("Horizontal", 31),
    Sketcher.Constraint("Symmetric", 6, 2, 16, 2, -1, 1),
    Sketcher.Constraint("Symmetric", 4, 2, 18, 2, -1, 1),
    Sketcher.Constraint("Symmetric", 2, 2, 20, 2, -1, 1),
    Sketcher.Constraint("Symmetric", 0, 2, 22, 2, -1, 1),
    Sketcher.Constraint("Symmetric", 10, 2, 24, 2, -1, 1),
    Sketcher.Constraint("Symmetric", 8, 2, 26, 2, -1, 1),
    Sketcher.Constraint("Symmetric", 14, 2, 28, 2, -1, 1),
    Sketcher.Constraint("Symmetric", 12, 2, 30, 2, -1, 1),
    Sketcher.Constraint("Symmetric", 1, 2, 4, 2, -2),
    Sketcher.Constraint("Symmetric", 3, 2, 6, 2, -2),
    Sketcher.Constraint("Symmetric", 13, 2, 24, 2, -2),
    Sketcher.Constraint("Symmetric", 15, 2, 26, 2, -2),
    Sketcher.Constraint("Equal", 7, 9),
    Sketcher.Constraint("Equal", 31, 0),
    Sketcher.Constraint("Equal", 6, 8),
    Sketcher.Constraint("DistanceX", 1, 1, 1, 2, Q("20 mm")),
    Sketcher.Constraint("DistanceX", -1, 1, 0, 2, Q("80 mm")),
    Sketcher.Constraint("DistanceY", -1, 1, 0, 2, Q("280 mm")),
    Sketcher.Constraint("DistanceX", 8, 2, -1, 1, Q("280 mm")),
    Sketcher.Constraint("DistanceY", 8, 2, -1, 1, Q("80 mm")),
])
pocket2 = body.newObject("PartDesign::Pocket", "Pocket001")
pocket2.Profile = sketch3
pocket2.Type = "ThroughAll"
pocket2.Reversed = True

doc.recompute()
